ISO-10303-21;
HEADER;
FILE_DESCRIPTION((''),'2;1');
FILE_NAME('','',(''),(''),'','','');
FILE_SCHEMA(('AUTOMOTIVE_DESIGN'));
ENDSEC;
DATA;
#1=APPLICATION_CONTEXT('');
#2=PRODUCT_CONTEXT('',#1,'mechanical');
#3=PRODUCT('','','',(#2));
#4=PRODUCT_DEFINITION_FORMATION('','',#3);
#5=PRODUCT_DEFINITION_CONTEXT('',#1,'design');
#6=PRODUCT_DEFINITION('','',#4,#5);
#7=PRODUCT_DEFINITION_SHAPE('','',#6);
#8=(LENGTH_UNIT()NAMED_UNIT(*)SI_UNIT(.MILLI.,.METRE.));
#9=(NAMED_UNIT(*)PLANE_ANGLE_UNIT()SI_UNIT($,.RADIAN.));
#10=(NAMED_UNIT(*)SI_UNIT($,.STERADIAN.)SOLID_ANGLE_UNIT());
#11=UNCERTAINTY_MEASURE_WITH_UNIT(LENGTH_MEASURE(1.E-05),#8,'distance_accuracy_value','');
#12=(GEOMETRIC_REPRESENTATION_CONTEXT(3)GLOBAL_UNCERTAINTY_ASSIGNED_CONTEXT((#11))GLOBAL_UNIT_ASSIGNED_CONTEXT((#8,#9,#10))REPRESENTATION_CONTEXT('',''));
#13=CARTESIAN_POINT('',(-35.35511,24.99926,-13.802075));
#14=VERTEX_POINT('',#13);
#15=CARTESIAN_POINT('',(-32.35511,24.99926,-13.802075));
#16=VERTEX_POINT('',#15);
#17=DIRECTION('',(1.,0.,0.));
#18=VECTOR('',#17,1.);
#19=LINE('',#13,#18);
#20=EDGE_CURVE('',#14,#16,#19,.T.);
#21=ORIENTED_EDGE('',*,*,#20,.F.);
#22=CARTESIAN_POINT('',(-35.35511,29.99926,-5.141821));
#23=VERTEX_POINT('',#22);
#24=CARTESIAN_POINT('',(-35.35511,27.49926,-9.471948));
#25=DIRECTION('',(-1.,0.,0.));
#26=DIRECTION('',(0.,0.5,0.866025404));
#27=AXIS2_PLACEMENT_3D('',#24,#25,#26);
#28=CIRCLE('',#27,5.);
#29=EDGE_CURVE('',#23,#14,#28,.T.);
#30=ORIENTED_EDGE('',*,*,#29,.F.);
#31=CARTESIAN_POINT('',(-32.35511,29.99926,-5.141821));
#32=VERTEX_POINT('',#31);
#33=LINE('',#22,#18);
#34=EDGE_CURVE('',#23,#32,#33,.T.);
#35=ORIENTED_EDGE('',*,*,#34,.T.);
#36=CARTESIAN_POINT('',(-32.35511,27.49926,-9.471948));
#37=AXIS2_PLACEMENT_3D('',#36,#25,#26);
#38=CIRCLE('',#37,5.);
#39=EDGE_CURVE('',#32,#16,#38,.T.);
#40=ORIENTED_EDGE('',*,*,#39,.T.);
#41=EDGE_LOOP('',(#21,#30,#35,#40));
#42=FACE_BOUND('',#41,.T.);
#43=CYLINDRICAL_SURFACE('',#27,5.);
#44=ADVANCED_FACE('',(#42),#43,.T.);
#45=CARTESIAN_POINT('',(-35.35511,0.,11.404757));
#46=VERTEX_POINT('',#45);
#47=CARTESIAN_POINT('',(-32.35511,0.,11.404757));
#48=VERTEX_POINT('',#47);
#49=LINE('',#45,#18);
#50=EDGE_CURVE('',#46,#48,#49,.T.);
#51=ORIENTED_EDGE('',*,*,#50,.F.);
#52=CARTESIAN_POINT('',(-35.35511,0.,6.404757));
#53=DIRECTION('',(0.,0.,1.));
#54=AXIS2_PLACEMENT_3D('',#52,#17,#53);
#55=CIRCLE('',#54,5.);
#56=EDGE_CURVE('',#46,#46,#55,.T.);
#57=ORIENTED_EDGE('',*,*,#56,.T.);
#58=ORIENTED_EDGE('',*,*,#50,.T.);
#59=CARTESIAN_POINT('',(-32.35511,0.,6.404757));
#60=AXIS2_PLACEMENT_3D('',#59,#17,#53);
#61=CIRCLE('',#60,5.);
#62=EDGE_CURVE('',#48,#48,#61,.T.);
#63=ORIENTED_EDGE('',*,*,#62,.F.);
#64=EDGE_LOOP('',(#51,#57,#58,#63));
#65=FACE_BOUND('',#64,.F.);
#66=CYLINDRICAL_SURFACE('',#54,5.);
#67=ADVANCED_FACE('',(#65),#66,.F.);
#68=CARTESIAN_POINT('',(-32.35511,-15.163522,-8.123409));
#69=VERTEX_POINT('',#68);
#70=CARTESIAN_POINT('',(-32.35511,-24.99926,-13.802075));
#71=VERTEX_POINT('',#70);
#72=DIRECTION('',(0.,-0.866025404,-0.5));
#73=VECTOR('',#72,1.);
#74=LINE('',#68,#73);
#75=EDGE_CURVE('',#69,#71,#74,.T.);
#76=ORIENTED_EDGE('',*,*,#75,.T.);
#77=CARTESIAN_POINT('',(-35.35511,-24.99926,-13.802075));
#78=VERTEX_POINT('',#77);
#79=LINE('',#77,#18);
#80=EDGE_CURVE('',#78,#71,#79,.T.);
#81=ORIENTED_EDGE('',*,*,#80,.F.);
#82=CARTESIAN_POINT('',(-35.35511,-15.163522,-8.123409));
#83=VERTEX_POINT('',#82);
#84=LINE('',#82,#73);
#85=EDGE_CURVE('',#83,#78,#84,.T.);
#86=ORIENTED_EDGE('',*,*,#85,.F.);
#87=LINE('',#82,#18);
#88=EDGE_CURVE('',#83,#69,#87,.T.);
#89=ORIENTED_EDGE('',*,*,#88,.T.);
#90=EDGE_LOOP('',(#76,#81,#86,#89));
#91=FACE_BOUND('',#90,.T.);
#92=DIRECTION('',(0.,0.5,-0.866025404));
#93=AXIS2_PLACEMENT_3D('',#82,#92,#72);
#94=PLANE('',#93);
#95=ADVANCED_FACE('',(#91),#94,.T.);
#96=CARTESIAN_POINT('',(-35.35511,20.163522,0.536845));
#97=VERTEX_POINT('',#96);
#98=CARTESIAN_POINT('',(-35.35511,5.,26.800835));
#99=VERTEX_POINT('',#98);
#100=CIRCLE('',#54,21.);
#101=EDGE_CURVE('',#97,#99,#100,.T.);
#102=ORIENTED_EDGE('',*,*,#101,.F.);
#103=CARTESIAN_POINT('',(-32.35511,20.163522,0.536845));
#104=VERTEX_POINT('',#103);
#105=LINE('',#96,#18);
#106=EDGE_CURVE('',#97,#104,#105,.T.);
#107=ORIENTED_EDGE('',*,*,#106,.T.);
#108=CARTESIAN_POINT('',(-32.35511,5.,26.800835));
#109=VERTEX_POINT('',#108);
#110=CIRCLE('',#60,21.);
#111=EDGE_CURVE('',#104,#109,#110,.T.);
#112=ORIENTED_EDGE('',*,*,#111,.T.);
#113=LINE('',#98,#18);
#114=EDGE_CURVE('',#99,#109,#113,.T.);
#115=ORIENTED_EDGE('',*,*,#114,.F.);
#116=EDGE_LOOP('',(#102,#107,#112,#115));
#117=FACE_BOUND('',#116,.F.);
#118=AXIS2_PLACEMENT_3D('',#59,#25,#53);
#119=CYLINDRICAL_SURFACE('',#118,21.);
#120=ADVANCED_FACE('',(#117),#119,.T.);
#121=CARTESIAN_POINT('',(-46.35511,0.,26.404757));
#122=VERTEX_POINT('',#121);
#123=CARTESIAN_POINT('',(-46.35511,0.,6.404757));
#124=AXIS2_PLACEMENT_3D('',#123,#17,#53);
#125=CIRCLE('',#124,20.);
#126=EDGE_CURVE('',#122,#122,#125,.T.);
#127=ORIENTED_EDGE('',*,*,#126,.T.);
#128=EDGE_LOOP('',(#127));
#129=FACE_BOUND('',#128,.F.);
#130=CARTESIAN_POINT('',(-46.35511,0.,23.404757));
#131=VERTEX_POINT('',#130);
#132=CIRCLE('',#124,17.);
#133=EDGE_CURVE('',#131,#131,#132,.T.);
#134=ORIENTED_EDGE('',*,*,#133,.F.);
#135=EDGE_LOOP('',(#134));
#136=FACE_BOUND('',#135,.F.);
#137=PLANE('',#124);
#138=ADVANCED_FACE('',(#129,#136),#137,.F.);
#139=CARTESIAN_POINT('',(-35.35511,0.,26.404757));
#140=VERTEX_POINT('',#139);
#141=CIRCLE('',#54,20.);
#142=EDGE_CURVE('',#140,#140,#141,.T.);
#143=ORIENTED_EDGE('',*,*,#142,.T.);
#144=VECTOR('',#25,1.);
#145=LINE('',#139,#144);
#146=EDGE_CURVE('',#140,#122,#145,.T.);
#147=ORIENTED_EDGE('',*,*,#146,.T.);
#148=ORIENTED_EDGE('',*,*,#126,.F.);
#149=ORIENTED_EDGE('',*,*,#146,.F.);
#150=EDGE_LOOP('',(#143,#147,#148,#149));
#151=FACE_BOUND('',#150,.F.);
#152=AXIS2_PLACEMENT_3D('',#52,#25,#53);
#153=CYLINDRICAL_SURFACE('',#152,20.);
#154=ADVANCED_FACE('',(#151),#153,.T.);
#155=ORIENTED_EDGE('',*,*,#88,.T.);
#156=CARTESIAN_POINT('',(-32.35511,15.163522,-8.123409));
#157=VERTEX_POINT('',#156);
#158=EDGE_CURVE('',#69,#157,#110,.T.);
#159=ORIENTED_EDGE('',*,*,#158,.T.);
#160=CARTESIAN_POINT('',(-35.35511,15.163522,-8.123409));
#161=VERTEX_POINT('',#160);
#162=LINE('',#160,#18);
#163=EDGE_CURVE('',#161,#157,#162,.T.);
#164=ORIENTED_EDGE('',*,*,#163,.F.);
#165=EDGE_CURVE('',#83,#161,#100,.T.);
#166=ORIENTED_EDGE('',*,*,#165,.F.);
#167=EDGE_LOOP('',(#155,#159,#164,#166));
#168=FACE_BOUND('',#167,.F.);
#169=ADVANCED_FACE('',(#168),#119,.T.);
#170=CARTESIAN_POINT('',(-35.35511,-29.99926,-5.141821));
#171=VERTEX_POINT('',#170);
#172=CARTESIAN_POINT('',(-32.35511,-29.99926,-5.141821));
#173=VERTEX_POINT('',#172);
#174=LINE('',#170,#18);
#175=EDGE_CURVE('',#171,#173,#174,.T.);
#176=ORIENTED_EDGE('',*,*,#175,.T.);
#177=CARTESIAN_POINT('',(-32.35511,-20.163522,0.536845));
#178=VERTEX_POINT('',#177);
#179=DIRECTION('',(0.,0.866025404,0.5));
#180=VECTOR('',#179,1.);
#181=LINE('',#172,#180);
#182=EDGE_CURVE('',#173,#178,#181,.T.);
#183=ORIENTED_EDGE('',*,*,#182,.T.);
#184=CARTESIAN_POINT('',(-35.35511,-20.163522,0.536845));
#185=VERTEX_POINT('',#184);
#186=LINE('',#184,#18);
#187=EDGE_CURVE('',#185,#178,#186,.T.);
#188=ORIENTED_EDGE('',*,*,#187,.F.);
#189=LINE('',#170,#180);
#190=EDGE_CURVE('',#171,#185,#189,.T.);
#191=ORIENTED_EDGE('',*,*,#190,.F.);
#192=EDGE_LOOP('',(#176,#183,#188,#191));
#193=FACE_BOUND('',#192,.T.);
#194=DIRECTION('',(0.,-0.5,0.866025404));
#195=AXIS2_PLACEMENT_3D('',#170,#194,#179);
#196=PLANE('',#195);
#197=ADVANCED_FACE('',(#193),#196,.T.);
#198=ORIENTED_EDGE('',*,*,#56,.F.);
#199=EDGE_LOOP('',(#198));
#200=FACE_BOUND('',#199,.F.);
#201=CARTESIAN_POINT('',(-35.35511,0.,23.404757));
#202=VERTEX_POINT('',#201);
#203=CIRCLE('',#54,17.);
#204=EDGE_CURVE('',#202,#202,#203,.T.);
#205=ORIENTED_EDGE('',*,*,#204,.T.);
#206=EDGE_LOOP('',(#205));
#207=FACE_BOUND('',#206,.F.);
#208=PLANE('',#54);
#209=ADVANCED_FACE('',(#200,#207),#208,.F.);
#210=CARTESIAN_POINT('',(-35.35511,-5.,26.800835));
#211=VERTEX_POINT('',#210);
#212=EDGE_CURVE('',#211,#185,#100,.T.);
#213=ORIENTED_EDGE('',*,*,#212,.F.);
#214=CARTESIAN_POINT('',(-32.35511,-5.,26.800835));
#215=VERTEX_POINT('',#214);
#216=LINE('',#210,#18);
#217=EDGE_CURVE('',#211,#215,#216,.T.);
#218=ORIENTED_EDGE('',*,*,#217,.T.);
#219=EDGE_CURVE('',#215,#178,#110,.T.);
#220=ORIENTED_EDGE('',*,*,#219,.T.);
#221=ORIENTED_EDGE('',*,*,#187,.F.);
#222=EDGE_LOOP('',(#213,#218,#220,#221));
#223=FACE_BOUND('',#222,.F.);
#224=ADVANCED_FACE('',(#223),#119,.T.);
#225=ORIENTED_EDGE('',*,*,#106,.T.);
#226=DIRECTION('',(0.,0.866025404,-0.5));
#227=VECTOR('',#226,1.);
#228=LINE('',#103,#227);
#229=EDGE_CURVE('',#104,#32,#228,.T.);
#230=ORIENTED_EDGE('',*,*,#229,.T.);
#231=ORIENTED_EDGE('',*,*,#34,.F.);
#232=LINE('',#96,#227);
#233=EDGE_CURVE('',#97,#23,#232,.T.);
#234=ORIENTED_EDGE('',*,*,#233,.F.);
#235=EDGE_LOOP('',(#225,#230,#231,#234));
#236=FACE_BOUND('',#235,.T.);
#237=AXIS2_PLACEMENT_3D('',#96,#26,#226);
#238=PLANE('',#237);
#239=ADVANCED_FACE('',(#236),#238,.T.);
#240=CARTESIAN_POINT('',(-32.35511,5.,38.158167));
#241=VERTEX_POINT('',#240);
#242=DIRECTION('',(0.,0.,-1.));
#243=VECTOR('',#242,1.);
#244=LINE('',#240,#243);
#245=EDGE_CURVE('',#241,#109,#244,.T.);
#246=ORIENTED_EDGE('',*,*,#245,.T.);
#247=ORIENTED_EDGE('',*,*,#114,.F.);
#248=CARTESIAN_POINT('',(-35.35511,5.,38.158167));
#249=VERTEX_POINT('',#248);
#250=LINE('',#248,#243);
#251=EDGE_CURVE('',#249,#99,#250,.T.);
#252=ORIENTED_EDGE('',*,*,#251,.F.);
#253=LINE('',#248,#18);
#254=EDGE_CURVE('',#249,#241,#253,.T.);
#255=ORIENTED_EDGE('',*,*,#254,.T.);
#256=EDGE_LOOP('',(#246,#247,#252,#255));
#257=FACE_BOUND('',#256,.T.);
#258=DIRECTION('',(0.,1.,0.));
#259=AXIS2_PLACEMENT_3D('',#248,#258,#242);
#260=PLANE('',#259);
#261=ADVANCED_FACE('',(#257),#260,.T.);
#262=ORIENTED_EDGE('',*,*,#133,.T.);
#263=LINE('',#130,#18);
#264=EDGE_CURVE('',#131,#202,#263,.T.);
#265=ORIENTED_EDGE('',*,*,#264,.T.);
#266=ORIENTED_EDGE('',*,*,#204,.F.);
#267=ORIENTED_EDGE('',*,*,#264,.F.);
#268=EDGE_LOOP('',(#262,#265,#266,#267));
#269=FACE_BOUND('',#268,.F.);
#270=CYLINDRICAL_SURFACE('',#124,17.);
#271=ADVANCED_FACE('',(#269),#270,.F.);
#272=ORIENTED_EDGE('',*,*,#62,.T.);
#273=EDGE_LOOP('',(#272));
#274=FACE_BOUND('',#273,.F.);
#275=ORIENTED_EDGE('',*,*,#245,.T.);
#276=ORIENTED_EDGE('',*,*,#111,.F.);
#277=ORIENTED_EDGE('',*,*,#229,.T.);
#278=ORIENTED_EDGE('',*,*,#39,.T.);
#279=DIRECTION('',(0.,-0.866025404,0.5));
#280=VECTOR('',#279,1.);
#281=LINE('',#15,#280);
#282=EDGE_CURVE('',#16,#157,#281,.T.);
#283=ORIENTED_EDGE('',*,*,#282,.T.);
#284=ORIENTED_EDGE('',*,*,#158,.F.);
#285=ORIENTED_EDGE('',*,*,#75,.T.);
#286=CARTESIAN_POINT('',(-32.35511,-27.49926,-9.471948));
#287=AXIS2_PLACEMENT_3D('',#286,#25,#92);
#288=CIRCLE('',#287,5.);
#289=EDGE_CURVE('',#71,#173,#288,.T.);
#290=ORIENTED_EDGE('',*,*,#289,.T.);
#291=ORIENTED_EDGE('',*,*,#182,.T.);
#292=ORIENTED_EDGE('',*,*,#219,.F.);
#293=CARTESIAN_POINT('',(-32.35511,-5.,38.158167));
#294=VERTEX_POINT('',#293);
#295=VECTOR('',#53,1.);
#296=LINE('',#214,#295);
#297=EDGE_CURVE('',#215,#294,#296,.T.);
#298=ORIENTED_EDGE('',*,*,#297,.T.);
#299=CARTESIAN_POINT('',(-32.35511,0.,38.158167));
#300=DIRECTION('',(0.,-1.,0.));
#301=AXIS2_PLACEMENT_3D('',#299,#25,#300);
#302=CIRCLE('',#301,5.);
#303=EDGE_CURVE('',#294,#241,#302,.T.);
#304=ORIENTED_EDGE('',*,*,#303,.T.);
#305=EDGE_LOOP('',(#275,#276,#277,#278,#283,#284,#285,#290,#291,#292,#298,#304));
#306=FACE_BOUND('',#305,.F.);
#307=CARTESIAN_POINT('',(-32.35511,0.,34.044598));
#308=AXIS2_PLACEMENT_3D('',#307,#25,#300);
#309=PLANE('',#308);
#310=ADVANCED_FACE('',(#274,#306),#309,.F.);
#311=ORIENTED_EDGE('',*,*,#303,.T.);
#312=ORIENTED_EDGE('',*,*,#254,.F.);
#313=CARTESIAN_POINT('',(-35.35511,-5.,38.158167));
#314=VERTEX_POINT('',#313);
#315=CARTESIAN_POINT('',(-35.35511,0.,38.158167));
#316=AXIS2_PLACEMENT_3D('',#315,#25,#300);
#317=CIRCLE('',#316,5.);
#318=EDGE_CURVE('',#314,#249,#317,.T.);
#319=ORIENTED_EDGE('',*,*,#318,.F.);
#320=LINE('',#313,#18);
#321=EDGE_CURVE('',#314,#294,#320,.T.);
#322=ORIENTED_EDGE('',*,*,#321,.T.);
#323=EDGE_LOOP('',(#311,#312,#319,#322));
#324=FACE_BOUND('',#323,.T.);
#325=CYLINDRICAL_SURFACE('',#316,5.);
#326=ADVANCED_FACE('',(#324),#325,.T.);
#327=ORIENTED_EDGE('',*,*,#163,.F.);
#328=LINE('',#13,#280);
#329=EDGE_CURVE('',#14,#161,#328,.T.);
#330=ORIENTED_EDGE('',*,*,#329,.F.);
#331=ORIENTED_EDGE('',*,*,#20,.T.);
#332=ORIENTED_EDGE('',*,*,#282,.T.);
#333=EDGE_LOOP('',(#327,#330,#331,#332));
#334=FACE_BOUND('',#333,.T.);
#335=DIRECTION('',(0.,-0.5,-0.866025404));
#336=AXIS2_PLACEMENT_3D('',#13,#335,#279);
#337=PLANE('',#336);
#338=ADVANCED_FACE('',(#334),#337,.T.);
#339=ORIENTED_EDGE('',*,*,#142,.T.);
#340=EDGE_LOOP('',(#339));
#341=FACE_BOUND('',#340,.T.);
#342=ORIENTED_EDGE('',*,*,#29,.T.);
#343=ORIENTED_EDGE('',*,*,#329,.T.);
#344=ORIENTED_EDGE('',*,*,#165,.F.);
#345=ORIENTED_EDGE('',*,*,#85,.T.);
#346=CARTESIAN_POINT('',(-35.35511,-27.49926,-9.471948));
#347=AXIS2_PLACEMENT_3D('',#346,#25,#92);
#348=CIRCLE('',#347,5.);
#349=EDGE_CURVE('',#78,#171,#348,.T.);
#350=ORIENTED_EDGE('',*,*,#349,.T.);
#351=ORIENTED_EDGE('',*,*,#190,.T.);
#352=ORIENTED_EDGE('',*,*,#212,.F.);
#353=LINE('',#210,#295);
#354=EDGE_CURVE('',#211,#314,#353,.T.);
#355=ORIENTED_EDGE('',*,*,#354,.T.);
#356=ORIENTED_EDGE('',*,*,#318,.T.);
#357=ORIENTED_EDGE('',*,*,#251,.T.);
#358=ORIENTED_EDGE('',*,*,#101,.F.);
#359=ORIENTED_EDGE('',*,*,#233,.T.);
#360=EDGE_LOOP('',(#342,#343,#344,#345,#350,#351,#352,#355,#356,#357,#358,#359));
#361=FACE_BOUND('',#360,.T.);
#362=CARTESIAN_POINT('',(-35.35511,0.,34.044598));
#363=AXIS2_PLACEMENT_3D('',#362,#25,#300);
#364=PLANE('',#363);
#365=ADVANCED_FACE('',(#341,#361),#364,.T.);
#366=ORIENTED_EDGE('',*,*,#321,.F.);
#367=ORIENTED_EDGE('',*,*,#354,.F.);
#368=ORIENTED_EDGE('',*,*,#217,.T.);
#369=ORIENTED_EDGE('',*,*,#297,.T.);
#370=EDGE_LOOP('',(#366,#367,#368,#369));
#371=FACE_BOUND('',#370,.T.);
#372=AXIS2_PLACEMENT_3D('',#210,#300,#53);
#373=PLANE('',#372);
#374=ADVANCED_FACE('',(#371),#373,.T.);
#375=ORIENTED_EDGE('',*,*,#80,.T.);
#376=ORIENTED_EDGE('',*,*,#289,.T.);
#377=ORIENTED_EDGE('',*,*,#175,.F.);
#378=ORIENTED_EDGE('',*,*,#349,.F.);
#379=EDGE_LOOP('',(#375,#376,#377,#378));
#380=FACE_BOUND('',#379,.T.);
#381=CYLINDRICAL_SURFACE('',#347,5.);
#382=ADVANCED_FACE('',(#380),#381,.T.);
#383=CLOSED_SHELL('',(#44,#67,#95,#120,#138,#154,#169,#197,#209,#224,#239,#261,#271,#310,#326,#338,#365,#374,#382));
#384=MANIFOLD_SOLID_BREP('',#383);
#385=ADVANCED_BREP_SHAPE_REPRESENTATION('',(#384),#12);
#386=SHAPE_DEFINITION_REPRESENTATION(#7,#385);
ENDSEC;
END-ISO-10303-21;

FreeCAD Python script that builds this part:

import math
import FreeCAD as App
import Part
import Sketcher
Q = App.Units.Quantity


def add_polygon(sketch, points):
    """Adds a closed chain of lines whose ends are joined by coincident constraints."""
    first, n = sketch.GeometryCount, len(points)
    for a, b in zip(points, points[1:] + points[:1]):
        sketch.addGeometry(Part.LineSegment(App.Vector(*a, 0), App.Vector(*b, 0)), False)
    for i in range(n):
        sketch.addConstraint(Sketcher.Constraint("Coincident", first + i, 2, first + (i + 1) % n, 1))

doc = App.newDocument("Part")
body = doc.addObject("PartDesign::Body", "Body")

sketch1 = body.newObject("Sketcher::SketchObject", "Sketch")
sketch1.AttachmentSupport = (doc.getObject("XZ_Plane"), [""])
sketch1.MapMode = "FlatFace"
add_polygon(sketch1, [(-35.4, 26.4), (-46.4, 26.4), (-46.4, 23.4), (-35.4, 23.4), (-35.4, 11.4), (-32.4, 11.4), (-32.4, 27.4), (-35.4, 27.4)])
sketch1.addGeometry(Part.LineSegment(App.Vector(-46.4, 6.4, 0), App.Vector(-32.4, 6.4, 0)), True)
sketch1.addConstraint(Sketcher.Constraint("Horizontal", 0))
sketch1.addConstraint(Sketcher.Constraint("Vertical", 1))
sketch1.addConstraint(Sketcher.Constraint("Horizontal", 2))
sketch1.addConstraint(Sketcher.Constraint("Vertical", 3))
sketch1.addConstraint(Sketcher.Constraint("Horizontal", 4))
sketch1.addConstraint(Sketcher.Constraint("Vertical", 5))
sketch1.addConstraint(Sketcher.Constraint("Horizontal", 6))
sketch1.addConstraint(Sketcher.Constraint("Vertical", 7))
sketch1.addConstraint(Sketcher.Constraint("Horizontal", 8))
sketch1.addConstraint(Sketcher.Constraint("Vertical", 3, 2, 6, 2))
sketch1.addConstraint(Sketcher.Constraint("Vertical", 1, 2, 8, 1))
sketch1.addConstraint(Sketcher.Constraint("Vertical", 5, 2, 8, 2))
sketch1.addConstraint(Sketcher.Constraint("Equal", 6, 1))
sketch1.addConstraint(Sketcher.Constraint("DistanceX", 0, 2, 0, 1, Q("11 mm")))
sketch1.addConstraint(Sketcher.Constraint("DistanceX", 4, 1, 4, 2, Q("3 mm")))
sketch1.addConstraint(Sketcher.Constraint("DistanceY", 3, 2, 3, 1, Q("12 mm")))
sketch1.addConstraint(Sketcher.Constraint("DistanceY", 5, 1, 5, 2, Q("16 mm")))
sketch1.addConstraint(Sketcher.Constraint("DistanceY", 8, 1, 3, 2, Q("5 mm")))
sketch1.addConstraint(Sketcher.Constraint("DistanceX", 0, 2, -1, 1, Q("46.35511 mm")))
sketch1.addConstraint(Sketcher.Constraint("DistanceY", -1, 1, 0, 2, Q("26.404757 mm")))
revolution = body.newObject("PartDesign::Revolution", "Revolution")
revolution.Profile = sketch1
revolution.ReferenceAxis = (sketch1, ["Axis0"])
revolution.Angle = 360

sketch2 = body.newObject("Sketcher::SketchObject", "Sketch001")
sketch2.AttachmentSupport = (doc.getObject("YZ_Plane"), [""])
sketch2.MapMode = "FlatFace"
sketch2.AttachmentOffset = App.Placement(App.Vector(0, 0, -35.35511), App.Rotation())
sketch2.addGeometry(Part.LineSegment(App.Vector(-5, 27, 0), App.Vector(-5, 38, 0)), False)
sketch2.addGeometry(Part.ArcOfCircle(Part.Circle(App.Vector(0, 38, 0), App.Vector(0, 0, 1), 5), math.radians(0), math.radians(180)), False)
sketch2.addGeometry(Part.LineSegment(App.Vector(5, 38, 0), App.Vector(5, 27, 0)), False)
sketch2.addGeometry(Part.ArcOfCircle(Part.Circle(App.Vector(0, 6, 0), App.Vector(0, 0, 1), 21), math.radians(76), math.radians(104)), False)
sketch2.addGeometry(Part.ArcOfCircle(Part.Circle(App.Vector(0, 6, 0), App.Vector(0, 0, 1), 21), math.radians(-44), math.radians(-16)), False)
sketch2.addGeometry(Part.LineSegment(App.Vector(20, 1, 0), App.Vector(30, -5, 0)), False)
sketch2.addGeometry(Part.ArcOfCircle(Part.Circle(App.Vector(27, -9, 0), App.Vector(0, 0, 1), 5), math.radians(-120), math.radians(60)), False)
sketch2.addGeometry(Part.LineSegment(App.Vector(25, -14, 0), App.Vector(15, -8, 0)), False)
sketch2.addGeometry(Part.LineSegment(App.Vector(-30, -5, 0), App.Vector(-20, 1, 0)), False)
sketch2.addGeometry(Part.ArcOfCircle(Part.Circle(App.Vector(0, 6, 0), App.Vector(0, 0, 1), 21), math.radians(-164), math.radians(-136)), False)
sketch2.addGeometry(Part.LineSegment(App.Vector(-15, -8, 0), App.Vector(-25, -14, 0)), False)
sketch2.addGeometry(Part.ArcOfCircle(Part.Circle(App.Vector(-27, -9, 0), App.Vector(0, 0, 1), 5), math.radians(120), math.radians(300)), False)
sketch2.addConstraint(Sketcher.Constraint("Tangent", 0, 2, 1, 2))
sketch2.addConstraint(Sketcher.Constraint("Tangent", 1, 1, 2, 1))
sketch2.addConstraint(Sketcher.Constraint("Coincident", 2, 2, 3, 1))
sketch2.addConstraint(Sketcher.Constraint("Coincident", 3, 2, 0, 1))
sketch2.addConstraint(Sketcher.Constraint("Coincident", 4, 2, 5, 1))
sketch2.addConstraint(Sketcher.Constraint("Tangent", 5, 2, 6, 2))
sketch2.addConstraint(Sketcher.Constraint("Tangent", 6, 1, 7, 1))
sketch2.addConstraint(Sketcher.Constraint("Coincident", 7, 2, 4, 1))
sketch2.addConstraint(Sketcher.Constraint("Coincident", 8, 2, 9, 1))
sketch2.addConstraint(Sketcher.Constraint("Coincident", 9, 2, 10, 1))
sketch2.addConstraint(Sketcher.Constraint("Tangent", 10, 2, 11, 2))
sketch2.addConstraint(Sketcher.Constraint("Tangent", 11, 1, 8, 1))
sketch2.addConstraint(Sketcher.Constraint("Vertical", 0))
sketch2.addConstraint(Sketcher.Constraint("Vertical", 2))
sketch2.addConstraint(Sketcher.Constraint("Coincident", 4, 3, 3, 3))
sketch2.addConstraint(Sketcher.Constraint("Coincident", 9, 3, 3, 3))
sketch2.addConstraint(Sketcher.Constraint("Equal", 3, 4))
sketch2.addConstraint(Sketcher.Constraint("Equal", 1, 6))
sketch2.addConstraint(Sketcher.Constraint("Equal", 4, 9))
sketch2.addConstraint(Sketcher.Constraint("Equal", 6, 11))
sketch2.addConstraint(Sketcher.Constraint("Symmetric", 6, 3, 11, 3, -2))
sketch2.addConstraint(Sketcher.Constraint("Symmetric", 2, 2, 3, 2, -2))
sketch2.addConstraint(Sketcher.Constraint("Parallel", 5, 7))
sketch2.addConstraint(Sketcher.Constraint("Parallel", 8, 10))
sketch2.addConstraint(Sketcher.Constraint("Horizontal", 4, 2, 8, 2))
sketch2.addConstraint(Sketcher.Constraint("Equal", 5, 7))
sketch2.addConstraint(Sketcher.Constraint("Radius", 1, Q("5 mm")))
sketch2.addConstraint(Sketcher.Constraint("Radius", 3, Q("21 mm")))
sketch2.addConstraint(Sketcher.Constraint("Angle", 5, Q("-30 deg")))
sketch2.addConstraint(Sketcher.Constraint("DistanceY", 0, 1, 0, 2, Q("11.357332 mm")))
sketch2.addConstraint(Sketcher.Constraint("DistanceX", -1, 1, 6, 3, Q("27.49926 mm")))
sketch2.addConstraint(Sketcher.Constraint("DistanceY", 5, 2, -1, 1, Q("5.141821 mm")))
pad1 = body.newObject("PartDesign::Pad", "Pad")
pad1.Profile = sketch2
pad1.Length = 3

doc.recompute()
